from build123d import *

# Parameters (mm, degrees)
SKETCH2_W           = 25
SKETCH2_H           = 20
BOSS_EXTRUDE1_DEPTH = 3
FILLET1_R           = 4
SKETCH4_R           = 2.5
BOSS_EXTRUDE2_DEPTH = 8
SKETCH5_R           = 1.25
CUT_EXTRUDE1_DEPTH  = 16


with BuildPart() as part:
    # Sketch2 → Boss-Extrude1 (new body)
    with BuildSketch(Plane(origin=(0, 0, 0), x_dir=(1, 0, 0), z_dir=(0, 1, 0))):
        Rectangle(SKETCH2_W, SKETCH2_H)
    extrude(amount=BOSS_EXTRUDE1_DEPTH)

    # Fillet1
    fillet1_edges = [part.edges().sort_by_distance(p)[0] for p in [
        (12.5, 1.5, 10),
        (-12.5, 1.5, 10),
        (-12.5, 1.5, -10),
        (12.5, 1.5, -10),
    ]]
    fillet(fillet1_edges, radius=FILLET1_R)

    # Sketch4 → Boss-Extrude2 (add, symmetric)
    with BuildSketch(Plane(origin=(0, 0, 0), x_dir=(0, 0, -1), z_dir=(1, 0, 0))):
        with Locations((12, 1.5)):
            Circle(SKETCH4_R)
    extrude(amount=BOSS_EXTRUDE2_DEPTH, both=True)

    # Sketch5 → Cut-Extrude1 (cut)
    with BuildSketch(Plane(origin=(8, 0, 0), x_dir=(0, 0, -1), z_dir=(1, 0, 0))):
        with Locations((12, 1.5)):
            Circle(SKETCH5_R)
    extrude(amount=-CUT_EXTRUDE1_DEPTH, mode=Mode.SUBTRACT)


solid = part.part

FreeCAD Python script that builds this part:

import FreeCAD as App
import Part
import Sketcher


def edges_at(feature, points):
    """Names of the edges that pass closest to the given points."""
    edges = feature.Shape.Edges
    near = lambda p: min(range(len(edges)), key=lambda i: edges[i].distToShape(Part.Vertex(*p))[0])
    return sorted({f"Edge{near(p) + 1}" for p in points})

doc = App.newDocument("Part")
body = doc.addObject("PartDesign::Body", "Body")

# Sketch on XZ plane
sketch1 = body.newObject("Sketcher::SketchObject", "Sketch")
sketch1.AttachmentSupport = (doc.getObject("XZ_Plane"), [""])
sketch1.MapMode = "FlatFace"
sketch1.addGeometry(Part.LineSegment(App.Vector(-12.5, -10, 0), App.Vector(-12.5, 10, 0)), False)
sketch1.addGeometry(Part.LineSegment(App.Vector(-12.5, 10, 0), App.Vector(12.5, 10, 0)), False)
sketch1.addGeometry(Part.LineSegment(App.Vector(12.5, 10, 0), App.Vector(12.5, -10, 0)), False)
sketch1.addGeometry(Part.LineSegment(App.Vector(12.5, -10, 0), App.Vector(-12.5, -10, 0)), False)
sketch1.addConstraint(Sketcher.Constraint("Coincident", 0, 2, 1, 1))
sketch1.addConstraint(Sketcher.Constraint("Coincident", 1, 2, 2, 1))
sketch1.addConstraint(Sketcher.Constraint("Coincident", 2, 2, 3, 1))
sketch1.addConstraint(Sketcher.Constraint("Coincident", 3, 2, 0, 1))
sketch1.addConstraint(Sketcher.Constraint("Vertical", 0))
sketch1.addConstraint(Sketcher.Constraint("Horizontal", 1))
sketch1.addConstraint(Sketcher.Constraint("Vertical", 2))
sketch1.addConstraint(Sketcher.Constraint("Horizontal", 3))
sketch1.addConstraint(Sketcher.Constraint("Symmetric", 0, 2, 2, 2, -1, 1))
sketch1.addConstraint(Sketcher.Constraint("DistanceX", 1, 1, 1, 2, 25.0))
sketch1.addConstraint(Sketcher.Constraint("DistanceY", 0, 1, 0, 2, 20.0))
pad1 = body.newObject("PartDesign::Pad", "Pad")
pad1.Profile = sketch1
pad1.Length = 3
pad1.Reversed = True
doc.recompute()

fillet = body.newObject("PartDesign::Fillet", "Fillet")
fillet.Base = (pad1, edges_at(pad1, [
    (12.5, 1.5, 10),
    (-12.5, 1.5, 10),
    (-12.5, 1.5, -10),
    (12.5, 1.5, -10),
]))
fillet.Radius = 4

# Sketch on YZ plane
sketch2 = body.newObject("Sketcher::SketchObject", "Sketch001")
sketch2.AttachmentSupport = (doc.getObject("YZ_Plane"), [""])
sketch2.MapMode = "FlatFace"
sketch2.addGeometry(Part.Circle(App.Vector(1.5, -12, 0), App.Vector(0, 0, 1), 2.5), False)
sketch2.addConstraint(Sketcher.Constraint("Diameter", 0, 5.0))
sketch2.addConstraint(Sketcher.Constraint("DistanceY", 0, 3, -1, 1, 12.0))
sketch2.addConstraint(Sketcher.Constraint("DistanceX", -1, 1, 0, 3, 1.5))
pad2 = body.newObject("PartDesign::Pad", "Pad001")
pad2.Profile = sketch2
pad2.Length = 16
pad2.Midplane = True

# Sketch on YZ plane
sketch3 = body.newObject("Sketcher::SketchObject", "Sketch002")
sketch3.AttachmentSupport = (doc.getObject("YZ_Plane"), [""])
sketch3.MapMode = "FlatFace"
sketch3.AttachmentOffset = App.Placement(App.Vector(0, 0, 8), App.Rotation())
sketch3.addGeometry(Part.Circle(App.Vector(1.5, -12, 0), App.Vector(0, 0, 1), 1.25), False)
sketch3.addConstraint(Sketcher.Constraint("Diameter", 0, 2.5))
sketch3.addConstraint(Sketcher.Constraint("DistanceY", 0, 3, -1, 1, 12.0))
sketch3.addConstraint(Sketcher.Constraint("DistanceX", -1, 1, 0, 3, 1.5))
pocket1 = body.newObject("PartDesign::Pocket", "Pocket")
pocket1.Profile = sketch3
pocket1.Length = 16

doc.recompute()
